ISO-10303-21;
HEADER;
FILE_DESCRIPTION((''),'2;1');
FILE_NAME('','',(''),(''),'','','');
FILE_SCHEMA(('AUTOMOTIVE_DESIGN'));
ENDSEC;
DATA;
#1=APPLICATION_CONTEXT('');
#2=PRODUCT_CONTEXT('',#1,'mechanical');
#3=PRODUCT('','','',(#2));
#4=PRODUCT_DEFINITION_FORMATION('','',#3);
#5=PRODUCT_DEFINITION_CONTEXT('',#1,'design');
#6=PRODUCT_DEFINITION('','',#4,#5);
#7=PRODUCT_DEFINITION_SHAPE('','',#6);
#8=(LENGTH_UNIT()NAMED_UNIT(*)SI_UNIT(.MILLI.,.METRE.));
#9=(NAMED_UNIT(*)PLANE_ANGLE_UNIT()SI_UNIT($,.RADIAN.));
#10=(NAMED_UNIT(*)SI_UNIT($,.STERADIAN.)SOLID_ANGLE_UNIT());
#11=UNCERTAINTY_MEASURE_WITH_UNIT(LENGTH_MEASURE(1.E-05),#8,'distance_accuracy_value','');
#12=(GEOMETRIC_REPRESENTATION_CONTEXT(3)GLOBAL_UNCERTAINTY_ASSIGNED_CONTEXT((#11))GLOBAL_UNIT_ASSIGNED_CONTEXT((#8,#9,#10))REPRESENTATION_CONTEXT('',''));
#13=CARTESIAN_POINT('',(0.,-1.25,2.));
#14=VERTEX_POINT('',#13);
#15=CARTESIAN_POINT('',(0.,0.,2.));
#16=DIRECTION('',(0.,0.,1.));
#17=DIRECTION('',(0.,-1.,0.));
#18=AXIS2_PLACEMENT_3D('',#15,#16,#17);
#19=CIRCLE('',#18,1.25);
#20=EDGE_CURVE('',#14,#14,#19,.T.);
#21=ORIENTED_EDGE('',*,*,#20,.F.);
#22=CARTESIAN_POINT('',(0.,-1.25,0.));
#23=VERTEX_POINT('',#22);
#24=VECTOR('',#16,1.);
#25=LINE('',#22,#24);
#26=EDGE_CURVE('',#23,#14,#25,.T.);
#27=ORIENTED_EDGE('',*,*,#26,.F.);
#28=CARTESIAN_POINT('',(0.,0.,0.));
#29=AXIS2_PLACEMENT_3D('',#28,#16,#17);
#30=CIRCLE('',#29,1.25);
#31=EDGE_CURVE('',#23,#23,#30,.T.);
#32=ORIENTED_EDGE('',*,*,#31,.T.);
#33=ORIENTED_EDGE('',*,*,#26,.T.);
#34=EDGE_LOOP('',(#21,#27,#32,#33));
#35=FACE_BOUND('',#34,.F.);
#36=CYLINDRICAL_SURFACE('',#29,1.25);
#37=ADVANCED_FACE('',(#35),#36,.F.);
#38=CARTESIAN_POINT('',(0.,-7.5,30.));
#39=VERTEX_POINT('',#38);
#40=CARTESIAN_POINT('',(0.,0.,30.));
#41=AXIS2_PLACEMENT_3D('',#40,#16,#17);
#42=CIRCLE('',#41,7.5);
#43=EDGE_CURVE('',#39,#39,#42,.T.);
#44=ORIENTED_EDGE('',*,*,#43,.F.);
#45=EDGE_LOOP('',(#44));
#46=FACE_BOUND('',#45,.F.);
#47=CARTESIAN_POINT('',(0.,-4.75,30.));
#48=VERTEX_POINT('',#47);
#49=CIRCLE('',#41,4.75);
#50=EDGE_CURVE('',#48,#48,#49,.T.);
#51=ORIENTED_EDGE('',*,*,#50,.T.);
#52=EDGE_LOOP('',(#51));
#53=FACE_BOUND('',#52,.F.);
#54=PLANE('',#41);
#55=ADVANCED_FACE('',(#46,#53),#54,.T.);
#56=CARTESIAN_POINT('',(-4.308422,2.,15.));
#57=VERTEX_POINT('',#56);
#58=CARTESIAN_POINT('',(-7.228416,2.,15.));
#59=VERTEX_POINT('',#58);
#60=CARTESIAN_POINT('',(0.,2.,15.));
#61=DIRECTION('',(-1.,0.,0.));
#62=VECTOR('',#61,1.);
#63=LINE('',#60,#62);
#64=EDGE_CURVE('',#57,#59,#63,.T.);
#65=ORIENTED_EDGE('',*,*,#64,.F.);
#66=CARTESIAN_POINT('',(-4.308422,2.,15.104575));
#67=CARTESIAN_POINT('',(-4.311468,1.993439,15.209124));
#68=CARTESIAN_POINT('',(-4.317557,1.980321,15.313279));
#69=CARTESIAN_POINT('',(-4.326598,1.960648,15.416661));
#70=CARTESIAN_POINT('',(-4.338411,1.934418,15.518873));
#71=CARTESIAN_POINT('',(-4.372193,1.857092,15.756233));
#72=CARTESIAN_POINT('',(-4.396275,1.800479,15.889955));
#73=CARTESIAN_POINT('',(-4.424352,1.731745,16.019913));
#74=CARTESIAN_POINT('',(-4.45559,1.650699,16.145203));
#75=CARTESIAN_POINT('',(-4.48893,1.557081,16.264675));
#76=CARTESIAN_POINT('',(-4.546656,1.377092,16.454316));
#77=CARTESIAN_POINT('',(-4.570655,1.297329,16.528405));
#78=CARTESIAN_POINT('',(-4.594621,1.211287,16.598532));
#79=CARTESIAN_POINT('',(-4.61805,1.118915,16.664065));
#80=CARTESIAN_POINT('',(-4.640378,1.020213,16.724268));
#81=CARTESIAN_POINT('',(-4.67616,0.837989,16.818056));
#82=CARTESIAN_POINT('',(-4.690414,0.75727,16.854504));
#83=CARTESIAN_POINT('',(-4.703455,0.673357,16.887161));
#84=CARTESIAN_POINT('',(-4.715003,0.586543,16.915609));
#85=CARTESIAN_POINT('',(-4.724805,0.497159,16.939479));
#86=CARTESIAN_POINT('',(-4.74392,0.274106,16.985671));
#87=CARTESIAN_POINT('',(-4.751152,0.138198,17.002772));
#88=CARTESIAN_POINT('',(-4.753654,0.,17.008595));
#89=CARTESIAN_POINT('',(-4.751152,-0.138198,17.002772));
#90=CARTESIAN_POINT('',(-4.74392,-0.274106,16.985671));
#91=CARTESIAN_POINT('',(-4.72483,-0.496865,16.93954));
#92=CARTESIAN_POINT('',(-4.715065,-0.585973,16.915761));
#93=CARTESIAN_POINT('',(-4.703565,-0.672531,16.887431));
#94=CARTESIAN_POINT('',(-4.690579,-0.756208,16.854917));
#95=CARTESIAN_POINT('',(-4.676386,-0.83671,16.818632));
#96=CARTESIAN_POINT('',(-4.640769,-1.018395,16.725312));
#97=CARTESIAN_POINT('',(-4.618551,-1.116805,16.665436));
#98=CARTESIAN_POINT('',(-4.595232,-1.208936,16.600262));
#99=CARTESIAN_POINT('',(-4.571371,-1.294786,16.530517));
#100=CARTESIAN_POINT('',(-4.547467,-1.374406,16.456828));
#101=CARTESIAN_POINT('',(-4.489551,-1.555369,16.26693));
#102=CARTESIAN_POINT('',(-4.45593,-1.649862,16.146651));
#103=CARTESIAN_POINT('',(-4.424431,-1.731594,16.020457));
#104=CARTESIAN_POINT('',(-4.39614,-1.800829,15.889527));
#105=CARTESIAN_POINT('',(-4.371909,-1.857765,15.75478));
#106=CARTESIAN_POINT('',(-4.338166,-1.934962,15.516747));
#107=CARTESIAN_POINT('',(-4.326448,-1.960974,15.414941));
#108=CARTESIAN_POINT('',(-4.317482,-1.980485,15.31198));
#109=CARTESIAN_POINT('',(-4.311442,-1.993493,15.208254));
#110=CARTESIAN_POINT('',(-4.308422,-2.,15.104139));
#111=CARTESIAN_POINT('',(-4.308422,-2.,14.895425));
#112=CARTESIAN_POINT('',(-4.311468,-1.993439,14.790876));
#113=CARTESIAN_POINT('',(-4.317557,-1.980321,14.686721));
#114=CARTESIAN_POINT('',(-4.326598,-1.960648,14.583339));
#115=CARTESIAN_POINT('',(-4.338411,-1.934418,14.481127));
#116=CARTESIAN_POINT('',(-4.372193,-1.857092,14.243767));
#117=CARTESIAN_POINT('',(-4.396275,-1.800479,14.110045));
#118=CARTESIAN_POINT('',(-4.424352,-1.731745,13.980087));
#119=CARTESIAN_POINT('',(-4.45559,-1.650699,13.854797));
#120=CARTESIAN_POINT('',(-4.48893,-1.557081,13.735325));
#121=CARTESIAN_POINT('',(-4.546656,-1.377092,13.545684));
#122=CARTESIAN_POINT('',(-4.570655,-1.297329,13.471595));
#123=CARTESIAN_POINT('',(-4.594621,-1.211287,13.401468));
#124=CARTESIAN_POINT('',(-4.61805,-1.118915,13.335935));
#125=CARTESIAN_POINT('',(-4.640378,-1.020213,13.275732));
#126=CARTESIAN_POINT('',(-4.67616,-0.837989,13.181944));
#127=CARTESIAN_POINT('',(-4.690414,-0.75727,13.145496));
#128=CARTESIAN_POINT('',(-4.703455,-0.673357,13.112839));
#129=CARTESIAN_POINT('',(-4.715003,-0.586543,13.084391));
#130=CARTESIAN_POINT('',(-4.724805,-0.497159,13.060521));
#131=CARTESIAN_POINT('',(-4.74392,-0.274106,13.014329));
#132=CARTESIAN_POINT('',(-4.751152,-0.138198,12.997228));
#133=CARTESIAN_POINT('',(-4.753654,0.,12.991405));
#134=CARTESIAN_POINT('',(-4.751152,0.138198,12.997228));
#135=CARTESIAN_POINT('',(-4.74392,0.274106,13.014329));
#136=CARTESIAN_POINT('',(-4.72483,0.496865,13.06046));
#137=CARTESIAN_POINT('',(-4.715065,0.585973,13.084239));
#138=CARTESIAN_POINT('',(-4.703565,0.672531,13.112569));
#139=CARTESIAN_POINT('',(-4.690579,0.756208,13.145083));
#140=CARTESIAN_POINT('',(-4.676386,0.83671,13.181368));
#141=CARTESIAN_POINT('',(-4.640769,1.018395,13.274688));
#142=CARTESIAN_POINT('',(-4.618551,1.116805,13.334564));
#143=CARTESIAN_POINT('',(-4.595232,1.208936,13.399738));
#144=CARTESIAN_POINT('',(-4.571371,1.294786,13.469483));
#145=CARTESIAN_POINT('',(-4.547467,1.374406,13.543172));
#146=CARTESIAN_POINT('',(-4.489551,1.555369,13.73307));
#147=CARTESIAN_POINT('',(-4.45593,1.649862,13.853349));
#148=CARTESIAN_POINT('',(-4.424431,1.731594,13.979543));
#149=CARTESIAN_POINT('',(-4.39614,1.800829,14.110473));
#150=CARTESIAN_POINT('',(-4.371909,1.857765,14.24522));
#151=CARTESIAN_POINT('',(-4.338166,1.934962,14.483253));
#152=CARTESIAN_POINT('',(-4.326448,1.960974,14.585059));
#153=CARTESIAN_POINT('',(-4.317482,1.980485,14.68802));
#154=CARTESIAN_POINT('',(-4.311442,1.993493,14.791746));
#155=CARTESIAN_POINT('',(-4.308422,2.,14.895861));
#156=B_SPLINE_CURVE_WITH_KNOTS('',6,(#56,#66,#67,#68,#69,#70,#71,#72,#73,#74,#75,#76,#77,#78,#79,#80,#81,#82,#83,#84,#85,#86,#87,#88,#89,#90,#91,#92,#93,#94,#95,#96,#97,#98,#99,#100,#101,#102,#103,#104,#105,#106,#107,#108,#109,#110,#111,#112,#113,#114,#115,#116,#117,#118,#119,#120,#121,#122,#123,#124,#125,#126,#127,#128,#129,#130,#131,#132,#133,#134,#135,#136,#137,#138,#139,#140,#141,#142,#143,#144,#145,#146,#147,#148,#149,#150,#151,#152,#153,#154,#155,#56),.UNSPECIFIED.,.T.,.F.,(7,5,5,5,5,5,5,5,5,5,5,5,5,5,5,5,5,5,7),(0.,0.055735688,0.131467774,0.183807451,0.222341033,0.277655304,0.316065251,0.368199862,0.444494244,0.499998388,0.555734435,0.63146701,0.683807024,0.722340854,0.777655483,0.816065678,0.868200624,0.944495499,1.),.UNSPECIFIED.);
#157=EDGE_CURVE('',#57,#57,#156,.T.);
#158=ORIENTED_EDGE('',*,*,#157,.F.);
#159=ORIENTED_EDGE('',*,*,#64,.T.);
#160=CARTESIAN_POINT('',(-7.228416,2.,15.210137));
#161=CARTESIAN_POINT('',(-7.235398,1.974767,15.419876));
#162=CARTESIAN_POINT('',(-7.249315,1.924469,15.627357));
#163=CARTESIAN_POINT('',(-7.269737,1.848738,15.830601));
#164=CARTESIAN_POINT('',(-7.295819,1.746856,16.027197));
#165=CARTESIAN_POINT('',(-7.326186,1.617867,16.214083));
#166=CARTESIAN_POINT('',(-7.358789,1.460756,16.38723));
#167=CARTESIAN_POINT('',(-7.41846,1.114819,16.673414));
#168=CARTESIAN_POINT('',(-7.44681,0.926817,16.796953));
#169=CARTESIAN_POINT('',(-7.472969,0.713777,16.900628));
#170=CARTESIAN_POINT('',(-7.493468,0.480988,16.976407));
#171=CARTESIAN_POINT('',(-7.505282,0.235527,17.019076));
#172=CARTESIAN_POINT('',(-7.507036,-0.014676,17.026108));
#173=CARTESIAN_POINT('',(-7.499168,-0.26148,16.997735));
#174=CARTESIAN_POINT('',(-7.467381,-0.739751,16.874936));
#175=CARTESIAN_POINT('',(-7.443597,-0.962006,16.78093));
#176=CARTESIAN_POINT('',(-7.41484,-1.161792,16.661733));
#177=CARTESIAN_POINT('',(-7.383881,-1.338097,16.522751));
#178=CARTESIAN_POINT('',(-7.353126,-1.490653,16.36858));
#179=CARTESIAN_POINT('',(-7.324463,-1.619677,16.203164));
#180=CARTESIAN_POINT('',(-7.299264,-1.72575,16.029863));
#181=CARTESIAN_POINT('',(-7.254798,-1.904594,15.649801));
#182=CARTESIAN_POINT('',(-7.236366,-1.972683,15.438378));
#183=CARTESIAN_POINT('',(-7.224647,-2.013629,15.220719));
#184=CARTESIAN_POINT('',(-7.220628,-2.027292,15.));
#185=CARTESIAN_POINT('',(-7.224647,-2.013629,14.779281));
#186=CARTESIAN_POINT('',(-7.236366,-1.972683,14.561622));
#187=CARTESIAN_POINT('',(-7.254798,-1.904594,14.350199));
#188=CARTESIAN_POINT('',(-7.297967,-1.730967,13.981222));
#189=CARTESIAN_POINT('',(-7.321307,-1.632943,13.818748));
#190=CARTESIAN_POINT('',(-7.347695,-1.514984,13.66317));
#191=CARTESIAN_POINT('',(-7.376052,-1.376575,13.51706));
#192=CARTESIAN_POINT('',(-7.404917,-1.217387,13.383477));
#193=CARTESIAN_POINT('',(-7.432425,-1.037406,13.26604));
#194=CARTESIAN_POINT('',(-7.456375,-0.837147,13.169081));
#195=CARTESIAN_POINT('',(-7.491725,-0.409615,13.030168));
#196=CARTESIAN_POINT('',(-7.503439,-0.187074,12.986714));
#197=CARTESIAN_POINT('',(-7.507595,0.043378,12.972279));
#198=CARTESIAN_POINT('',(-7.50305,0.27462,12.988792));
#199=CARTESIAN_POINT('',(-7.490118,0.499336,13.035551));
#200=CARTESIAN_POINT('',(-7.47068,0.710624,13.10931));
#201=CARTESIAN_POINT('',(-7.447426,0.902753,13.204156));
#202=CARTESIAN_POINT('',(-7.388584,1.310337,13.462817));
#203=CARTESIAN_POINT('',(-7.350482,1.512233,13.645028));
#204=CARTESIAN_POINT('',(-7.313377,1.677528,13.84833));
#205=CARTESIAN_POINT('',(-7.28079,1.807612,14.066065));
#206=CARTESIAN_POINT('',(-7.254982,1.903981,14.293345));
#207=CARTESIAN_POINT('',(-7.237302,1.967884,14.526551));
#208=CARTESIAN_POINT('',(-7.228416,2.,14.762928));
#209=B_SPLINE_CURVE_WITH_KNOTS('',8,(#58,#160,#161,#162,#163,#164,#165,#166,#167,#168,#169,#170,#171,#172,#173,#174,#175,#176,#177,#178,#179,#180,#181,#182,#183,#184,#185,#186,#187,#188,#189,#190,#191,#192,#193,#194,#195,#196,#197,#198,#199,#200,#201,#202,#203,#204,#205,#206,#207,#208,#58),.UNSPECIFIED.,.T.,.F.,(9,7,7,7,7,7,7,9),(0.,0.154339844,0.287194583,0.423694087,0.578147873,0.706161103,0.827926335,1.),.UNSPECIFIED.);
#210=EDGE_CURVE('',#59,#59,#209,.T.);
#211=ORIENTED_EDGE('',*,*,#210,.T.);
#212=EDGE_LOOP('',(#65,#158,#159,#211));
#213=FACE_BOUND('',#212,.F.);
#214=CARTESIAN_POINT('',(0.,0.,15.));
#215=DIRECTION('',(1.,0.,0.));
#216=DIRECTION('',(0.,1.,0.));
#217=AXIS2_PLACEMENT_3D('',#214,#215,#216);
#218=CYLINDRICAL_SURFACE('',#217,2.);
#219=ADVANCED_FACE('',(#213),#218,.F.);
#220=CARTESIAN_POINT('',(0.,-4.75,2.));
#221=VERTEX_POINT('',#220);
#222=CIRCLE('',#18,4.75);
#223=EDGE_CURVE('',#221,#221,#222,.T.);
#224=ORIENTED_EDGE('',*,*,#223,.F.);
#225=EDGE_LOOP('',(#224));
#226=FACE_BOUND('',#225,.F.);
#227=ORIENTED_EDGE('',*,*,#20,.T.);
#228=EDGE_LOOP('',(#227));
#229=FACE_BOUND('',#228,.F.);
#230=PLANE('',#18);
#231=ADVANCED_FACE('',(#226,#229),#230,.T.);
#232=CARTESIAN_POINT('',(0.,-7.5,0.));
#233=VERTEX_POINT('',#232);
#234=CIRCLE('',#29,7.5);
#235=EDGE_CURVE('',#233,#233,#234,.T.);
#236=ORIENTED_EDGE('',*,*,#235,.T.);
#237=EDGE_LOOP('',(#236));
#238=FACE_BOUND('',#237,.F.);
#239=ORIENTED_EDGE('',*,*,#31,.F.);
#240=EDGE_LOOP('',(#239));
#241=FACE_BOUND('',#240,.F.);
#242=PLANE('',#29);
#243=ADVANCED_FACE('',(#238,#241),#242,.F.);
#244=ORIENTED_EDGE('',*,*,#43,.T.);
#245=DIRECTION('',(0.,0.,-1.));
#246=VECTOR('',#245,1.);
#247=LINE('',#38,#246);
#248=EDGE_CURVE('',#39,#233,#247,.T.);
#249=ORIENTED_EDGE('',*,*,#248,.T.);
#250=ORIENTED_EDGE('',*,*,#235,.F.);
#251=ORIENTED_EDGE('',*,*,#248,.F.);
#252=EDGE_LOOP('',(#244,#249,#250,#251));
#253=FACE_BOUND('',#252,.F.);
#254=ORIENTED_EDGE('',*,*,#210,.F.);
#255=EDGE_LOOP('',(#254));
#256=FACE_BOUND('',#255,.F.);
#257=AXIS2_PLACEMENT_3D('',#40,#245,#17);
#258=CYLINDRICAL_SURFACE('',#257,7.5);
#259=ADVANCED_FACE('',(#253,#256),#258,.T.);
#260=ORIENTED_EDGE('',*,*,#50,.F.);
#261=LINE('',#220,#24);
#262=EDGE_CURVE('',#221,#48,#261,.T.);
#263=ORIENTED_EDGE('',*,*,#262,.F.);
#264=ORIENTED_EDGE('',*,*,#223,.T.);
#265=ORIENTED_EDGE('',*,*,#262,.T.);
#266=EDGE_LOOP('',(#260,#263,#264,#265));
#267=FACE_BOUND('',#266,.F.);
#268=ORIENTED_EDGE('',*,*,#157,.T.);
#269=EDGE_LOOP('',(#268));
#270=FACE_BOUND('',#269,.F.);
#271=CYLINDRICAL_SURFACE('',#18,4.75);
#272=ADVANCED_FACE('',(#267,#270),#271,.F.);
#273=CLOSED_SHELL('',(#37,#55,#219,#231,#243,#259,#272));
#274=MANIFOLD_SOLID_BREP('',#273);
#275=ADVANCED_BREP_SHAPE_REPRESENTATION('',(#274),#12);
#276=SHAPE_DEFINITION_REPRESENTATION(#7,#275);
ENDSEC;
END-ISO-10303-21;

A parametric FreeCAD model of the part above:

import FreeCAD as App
import Part
import Sketcher
from FreeCAD import Vector


def add_polygon(sketch, points):
    """Adds a closed chain of lines whose ends are joined by coincident constraints."""
    first, n = sketch.GeometryCount, len(points)
    for a, b in zip(points, points[1:] + points[:1]):
        sketch.addGeometry(Part.LineSegment(App.Vector(*a, 0), App.Vector(*b, 0)), False)
    for i in range(n):
        sketch.addConstraint(Sketcher.Constraint("Coincident", first + i, 2, first + (i + 1) % n, 1))

doc = App.newDocument("Part")
body = doc.addObject("PartDesign::Body", "Body")

# Sketch on YZ plane
sketch1 = doc.addObject("Sketcher::SketchObject", "Sketch")
body.addObject(sketch1)
sketch1.AttachmentSupport = (doc.YZ_Plane, [""])
sketch1.MapMode = "FlatFace"
add_polygon(sketch1, [(-7.5, 0), (-1.2, 0), (-1.2, 2), (-4.8, 2), (-4.8, 30), (-7.5, 30)])  # lines 0-5
sketch1.addConstraint([
    Sketcher.Constraint("Horizontal", 0),
    Sketcher.Constraint("Vertical", 1),
    Sketcher.Constraint("Horizontal", 2),
    Sketcher.Constraint("Vertical", 3),
    Sketcher.Constraint("Horizontal", 4),
    Sketcher.Constraint("Vertical", 5),
    Sketcher.Constraint("PointOnObject", 0, 2, -1),
    Sketcher.Constraint("DistanceY", 1, 1, 1, 2, 2.0),
    Sketcher.Constraint("DistanceY", 3, 1, 3, 2, 28.0),
    Sketcher.Constraint("DistanceX", 2, 2, 2, 1, 3.5),
    Sketcher.Constraint("DistanceX", 0, 1, 0, 2, 6.25),
    Sketcher.Constraint("DistanceX", 4, 2, -1, 1, 7.5),
])
revolution = doc.addObject("PartDesign::Revolution", "Revolution")
body.addObject(revolution)
revolution.Profile = sketch1
revolution.ReferenceAxis = (sketch1, ["V_Axis"])
revolution.Angle = 360

# Sketch on YZ plane
sketch2 = doc.addObject("Sketcher::SketchObject", "Sketch001")
body.addObject(sketch2)
sketch2.AttachmentSupport = (doc.YZ_Plane, [""])
sketch2.MapMode = "FlatFace"
sketch2.addGeometry(Part.Circle(Vector(0, 15, 0), Vector(0, 0, 1), 2), False)
sketch2.addConstraint([
    Sketcher.Constraint("PointOnObject", 0, 3, -2),
    Sketcher.Constraint("Diameter", 0, 4.0),
    Sketcher.Constraint("DistanceY", -1, 1, 0, 3, 15.0),
])
pocket1 = doc.addObject("PartDesign::Pocket", "Pocket")
body.addObject(pocket1)
pocket1.Profile = sketch2
pocket1.Length = 25

doc.recompute()
